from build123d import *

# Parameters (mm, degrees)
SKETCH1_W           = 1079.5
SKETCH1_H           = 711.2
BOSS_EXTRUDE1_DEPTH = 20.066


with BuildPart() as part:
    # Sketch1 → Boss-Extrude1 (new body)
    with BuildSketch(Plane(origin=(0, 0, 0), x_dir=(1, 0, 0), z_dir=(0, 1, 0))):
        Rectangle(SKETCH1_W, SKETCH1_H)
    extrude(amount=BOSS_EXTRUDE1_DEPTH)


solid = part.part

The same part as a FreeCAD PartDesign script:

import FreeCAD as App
import Part
import Sketcher

V = App.Vector
Q = App.Units.Quantity


def add_polygon(sketch, points):
    """Adds a closed chain of lines whose ends are joined by coincident constraints."""
    first, n = sketch.GeometryCount, len(points)
    for a, b in zip(points, points[1:] + points[:1]):
        sketch.addGeometry(Part.LineSegment(App.Vector(*a, 0), App.Vector(*b, 0)), False)
    for i in range(n):
        sketch.addConstraint(Sketcher.Constraint("Coincident", first + i, 2, first + (i + 1) % n, 1))

doc = App.newDocument("Part")
body = doc.addObject("PartDesign::Body", "Body")

# Sketch on XZ plane
sketch1 = body.newObject("Sketcher::SketchObject", "Sketch")
sketch1.AttachmentSupport = (doc.getObject("XZ_Plane"), [""])
sketch1.MapMode = "FlatFace"
add_polygon(sketch1, [(-540, -356), (-540, 356), (540, 356), (540, -356)])  # lines 0-3
sketch1.addConstraint(Sketcher.Constraint("Vertical", 0))
sketch1.addConstraint(Sketcher.Constraint("Horizontal", 1))
sketch1.addConstraint(Sketcher.Constraint("Vertical", 2))
sketch1.addConstraint(Sketcher.Constraint("Horizontal", 3))
sketch1.addConstraint(Sketcher.Constraint("Symmetric", 0, 2, 2, 2, -1, 1))
sketch1.addConstraint(Sketcher.Constraint("DistanceY", 0, 1, 0, 2, Q("28 in")))
sketch1.addConstraint(Sketcher.Constraint("DistanceX", 1, 1, 1, 2, Q("42.5 in")))
pad1 = body.newObject("PartDesign::Pad", "Pad")
pad1.Profile = sketch1
pad1.Length = Q("0.79 in")
pad1.Reversed = True

doc.recompute()
